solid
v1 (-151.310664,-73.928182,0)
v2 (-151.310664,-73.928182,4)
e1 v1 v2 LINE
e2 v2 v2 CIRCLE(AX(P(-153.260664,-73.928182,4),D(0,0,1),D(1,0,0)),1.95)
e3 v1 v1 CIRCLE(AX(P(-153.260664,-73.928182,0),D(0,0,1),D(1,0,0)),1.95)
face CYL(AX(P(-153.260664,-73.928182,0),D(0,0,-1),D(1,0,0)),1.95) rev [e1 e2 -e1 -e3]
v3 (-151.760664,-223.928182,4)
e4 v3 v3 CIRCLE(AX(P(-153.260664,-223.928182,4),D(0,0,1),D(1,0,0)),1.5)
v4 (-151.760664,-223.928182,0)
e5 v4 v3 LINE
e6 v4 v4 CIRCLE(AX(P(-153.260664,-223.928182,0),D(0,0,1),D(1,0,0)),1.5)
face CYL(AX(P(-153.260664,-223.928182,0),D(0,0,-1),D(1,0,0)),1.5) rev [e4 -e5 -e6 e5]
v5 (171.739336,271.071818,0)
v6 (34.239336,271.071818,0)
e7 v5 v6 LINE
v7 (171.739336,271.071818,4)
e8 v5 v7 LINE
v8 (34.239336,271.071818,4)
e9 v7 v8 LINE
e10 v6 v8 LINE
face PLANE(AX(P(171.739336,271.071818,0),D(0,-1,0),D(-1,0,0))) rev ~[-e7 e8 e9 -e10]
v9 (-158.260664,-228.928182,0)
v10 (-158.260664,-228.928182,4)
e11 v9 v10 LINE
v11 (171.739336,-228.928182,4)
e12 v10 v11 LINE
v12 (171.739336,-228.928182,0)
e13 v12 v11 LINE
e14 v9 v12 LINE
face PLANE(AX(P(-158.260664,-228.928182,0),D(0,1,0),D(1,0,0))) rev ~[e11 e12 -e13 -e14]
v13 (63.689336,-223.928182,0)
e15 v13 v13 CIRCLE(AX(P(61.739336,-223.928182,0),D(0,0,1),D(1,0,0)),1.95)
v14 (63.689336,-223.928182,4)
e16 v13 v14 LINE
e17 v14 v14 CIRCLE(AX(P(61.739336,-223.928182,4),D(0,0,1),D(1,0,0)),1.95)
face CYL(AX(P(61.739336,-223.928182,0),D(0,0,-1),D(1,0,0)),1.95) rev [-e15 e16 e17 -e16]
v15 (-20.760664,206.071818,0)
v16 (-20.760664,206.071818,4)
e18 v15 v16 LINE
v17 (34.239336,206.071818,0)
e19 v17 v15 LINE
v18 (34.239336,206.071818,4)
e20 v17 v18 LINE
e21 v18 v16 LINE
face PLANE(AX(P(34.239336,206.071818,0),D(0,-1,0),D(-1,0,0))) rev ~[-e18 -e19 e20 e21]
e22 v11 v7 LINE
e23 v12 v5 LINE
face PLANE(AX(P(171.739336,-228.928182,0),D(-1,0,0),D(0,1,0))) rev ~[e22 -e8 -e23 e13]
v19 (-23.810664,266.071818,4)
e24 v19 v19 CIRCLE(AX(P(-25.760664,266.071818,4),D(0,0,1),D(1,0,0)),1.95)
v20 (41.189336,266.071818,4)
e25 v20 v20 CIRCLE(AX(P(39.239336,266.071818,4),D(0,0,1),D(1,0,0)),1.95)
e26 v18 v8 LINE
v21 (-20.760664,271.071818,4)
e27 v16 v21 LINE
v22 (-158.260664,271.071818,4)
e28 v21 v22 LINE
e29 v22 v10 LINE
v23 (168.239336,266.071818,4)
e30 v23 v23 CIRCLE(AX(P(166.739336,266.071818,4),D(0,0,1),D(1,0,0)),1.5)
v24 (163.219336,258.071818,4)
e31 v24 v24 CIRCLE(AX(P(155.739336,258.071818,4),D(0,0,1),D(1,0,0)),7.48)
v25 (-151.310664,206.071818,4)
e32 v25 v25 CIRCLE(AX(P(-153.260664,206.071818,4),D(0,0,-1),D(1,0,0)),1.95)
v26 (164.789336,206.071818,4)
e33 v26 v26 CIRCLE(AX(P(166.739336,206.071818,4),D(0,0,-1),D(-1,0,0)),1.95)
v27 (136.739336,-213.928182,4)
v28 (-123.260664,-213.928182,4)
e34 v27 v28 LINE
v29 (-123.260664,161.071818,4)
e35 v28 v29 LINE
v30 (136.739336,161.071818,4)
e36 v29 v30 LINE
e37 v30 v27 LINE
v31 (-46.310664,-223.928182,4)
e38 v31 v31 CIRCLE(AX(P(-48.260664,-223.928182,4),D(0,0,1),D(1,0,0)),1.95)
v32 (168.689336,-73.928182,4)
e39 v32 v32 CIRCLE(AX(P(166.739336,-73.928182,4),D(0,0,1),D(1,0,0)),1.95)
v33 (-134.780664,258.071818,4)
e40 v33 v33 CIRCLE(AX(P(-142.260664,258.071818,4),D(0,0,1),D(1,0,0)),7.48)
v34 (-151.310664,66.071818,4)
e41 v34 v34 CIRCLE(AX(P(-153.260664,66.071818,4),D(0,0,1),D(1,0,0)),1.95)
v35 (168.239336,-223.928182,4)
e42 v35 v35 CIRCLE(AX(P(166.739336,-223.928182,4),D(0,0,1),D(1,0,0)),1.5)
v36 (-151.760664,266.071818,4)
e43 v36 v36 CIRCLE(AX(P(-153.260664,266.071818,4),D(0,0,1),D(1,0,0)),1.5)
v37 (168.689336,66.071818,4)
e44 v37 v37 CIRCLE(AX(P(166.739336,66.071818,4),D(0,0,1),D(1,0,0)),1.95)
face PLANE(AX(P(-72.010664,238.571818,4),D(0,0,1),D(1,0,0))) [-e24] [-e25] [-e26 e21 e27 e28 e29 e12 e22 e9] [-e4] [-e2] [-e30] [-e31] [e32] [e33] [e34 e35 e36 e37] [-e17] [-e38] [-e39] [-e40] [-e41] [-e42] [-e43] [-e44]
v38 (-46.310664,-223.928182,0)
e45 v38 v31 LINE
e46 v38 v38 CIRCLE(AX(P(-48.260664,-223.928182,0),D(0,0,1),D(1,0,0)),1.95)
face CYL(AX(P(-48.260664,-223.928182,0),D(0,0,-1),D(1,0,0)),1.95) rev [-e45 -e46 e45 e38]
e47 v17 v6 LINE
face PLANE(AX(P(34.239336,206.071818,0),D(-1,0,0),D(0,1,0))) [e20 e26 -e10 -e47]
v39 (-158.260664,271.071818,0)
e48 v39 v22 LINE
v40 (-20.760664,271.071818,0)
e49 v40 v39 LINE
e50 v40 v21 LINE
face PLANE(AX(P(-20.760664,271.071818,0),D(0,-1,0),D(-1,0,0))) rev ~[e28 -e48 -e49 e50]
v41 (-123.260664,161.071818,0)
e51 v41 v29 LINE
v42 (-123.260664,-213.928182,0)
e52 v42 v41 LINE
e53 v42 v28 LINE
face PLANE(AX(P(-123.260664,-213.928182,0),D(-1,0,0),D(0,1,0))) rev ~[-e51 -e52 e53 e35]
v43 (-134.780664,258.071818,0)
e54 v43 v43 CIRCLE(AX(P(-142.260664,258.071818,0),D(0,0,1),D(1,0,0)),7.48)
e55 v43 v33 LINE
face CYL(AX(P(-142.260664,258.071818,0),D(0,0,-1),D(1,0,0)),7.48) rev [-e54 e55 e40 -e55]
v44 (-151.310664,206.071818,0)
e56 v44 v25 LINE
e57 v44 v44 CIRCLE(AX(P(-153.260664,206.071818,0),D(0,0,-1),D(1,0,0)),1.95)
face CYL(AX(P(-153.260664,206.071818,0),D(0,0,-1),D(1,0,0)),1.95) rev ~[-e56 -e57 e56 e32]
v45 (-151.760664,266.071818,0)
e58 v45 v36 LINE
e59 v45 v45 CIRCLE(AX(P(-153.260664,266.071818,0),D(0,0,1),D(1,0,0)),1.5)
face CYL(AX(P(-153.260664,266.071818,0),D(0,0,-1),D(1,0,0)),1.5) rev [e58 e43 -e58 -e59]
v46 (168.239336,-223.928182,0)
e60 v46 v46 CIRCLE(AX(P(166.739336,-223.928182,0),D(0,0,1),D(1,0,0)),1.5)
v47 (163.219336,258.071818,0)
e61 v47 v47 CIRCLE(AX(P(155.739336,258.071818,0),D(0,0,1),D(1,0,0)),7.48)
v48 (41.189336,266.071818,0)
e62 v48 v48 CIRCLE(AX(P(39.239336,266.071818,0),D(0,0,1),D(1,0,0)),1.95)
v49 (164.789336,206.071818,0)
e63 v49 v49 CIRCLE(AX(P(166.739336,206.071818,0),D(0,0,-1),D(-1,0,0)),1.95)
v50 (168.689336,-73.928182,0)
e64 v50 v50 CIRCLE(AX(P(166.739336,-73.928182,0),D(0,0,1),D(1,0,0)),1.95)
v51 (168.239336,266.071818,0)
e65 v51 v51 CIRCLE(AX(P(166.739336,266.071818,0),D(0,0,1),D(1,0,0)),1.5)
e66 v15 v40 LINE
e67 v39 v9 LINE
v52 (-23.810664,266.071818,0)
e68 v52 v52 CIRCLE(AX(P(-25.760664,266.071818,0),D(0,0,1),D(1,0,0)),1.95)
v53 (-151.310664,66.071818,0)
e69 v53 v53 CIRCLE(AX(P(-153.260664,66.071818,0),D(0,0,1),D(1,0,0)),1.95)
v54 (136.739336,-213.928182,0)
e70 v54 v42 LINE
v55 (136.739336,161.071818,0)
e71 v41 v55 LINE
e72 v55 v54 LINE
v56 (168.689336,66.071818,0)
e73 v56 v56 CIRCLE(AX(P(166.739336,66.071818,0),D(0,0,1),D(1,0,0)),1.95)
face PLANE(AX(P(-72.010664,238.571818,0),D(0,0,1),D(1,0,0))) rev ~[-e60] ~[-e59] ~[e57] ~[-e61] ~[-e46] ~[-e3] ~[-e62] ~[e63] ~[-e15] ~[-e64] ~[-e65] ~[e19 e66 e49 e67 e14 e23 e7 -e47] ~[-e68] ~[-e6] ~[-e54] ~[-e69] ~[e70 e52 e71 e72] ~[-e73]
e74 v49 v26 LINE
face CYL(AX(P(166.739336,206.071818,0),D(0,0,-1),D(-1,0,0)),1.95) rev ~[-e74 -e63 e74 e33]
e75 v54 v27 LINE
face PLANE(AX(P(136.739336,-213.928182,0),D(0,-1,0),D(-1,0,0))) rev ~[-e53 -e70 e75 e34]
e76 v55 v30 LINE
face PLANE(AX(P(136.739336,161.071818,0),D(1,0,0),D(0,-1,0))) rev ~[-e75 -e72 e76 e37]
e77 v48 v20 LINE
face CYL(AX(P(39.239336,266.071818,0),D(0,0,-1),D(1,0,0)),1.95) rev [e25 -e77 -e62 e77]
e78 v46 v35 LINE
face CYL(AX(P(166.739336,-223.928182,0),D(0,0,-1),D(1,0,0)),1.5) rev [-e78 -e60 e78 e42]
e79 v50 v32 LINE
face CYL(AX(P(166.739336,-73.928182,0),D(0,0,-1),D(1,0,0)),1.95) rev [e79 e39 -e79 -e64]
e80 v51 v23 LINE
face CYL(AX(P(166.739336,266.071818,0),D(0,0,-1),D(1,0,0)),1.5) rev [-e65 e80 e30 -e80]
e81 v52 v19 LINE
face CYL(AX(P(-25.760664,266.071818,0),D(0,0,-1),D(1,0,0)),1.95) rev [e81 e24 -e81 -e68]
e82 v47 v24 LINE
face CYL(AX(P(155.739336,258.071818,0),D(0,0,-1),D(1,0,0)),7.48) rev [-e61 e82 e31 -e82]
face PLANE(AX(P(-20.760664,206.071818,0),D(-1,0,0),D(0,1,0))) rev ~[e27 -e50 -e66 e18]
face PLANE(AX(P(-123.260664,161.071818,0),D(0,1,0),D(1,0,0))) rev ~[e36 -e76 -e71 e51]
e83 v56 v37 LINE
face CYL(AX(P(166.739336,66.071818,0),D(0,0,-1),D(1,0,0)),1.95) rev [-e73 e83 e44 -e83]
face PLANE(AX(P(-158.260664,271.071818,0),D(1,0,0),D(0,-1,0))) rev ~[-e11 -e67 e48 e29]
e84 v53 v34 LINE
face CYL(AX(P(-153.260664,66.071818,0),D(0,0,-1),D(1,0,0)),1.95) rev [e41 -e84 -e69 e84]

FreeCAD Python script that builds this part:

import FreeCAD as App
import Part
import Sketcher

V = App.Vector
Q = App.Units.Quantity


def add_polygon(sketch, points):
    """Adds a closed chain of lines whose ends are joined by coincident constraints."""
    first, n = sketch.GeometryCount, len(points)
    for a, b in zip(points, points[1:] + points[:1]):
        sketch.addGeometry(Part.LineSegment(App.Vector(*a, 0), App.Vector(*b, 0)), False)
    for i in range(n):
        sketch.addConstraint(Sketcher.Constraint("Coincident", first + i, 2, first + (i + 1) % n, 1))

doc = App.newDocument("Part")
params = doc.addObject("Spreadsheet::Sheet", "Params")
for row, (alias, value) in enumerate([
    ("sketch1_diameter", "3 mm"),
    ("sketch1_diameter2", "3.9 mm"),
    ("sketch1_diameter3", "14.96 mm"),
    ("sketch1_width", "330 mm"),
    ("sketch1_width2", "55 mm"),
    ("pad1_length", "4 mm"),
], start=1):
    params.set(f"A{row}", alias)
    params.set(f"B{row}", "=" + value)
    params.setAlias(f"B{row}", alias)

body = doc.addObject("PartDesign::Body", "Body")

# Sketch on XY plane
sketch1 = body.newObject("Sketcher::SketchObject", "Sketch")
sketch1.AttachmentSupport = (doc.getObject("XY_Plane"), [""])
sketch1.MapMode = "FlatFace"
add_polygon(sketch1, [(-20.8, 206.1), (-20.8, 271.1), (-158.3, 271.1), (-158.3, -228.9), (171.7, -228.9), (171.7, 271.1), (34.2, 271.1), (34.2, 206.1)])  # lines 0-7
add_polygon(sketch1, [(-123.3, -213.9), (-123.3, 161.1), (136.7, 161.1), (136.7, -213.9)])  # lines 8-11
sketch1.addGeometry(Part.Circle(V(-153.3, -223.9, 0), V(0, 0, 1), 1.5), False)  # 12
sketch1.addGeometry(Part.Circle(V(-48.3, -223.9, 0), V(0, 0, 1), 1.9), False)  # 13
sketch1.addGeometry(Part.Circle(V(-153.3, -73.9, 0), V(0, 0, 1), 1.9), False)  # 14
sketch1.addGeometry(Part.Circle(V(61.7, -223.9, 0), V(0, 0, 1), 1.9), False)  # 15
sketch1.addGeometry(Part.Circle(V(166.7, -223.9, 0), V(0, 0, 1), 1.5), False)  # 16
sketch1.addGeometry(Part.Circle(V(166.7, -73.9, 0), V(0, 0, 1), 1.9), False)  # 17
sketch1.addGeometry(Part.Circle(V(-153.3, 66.1, 0), V(0, 0, 1), 1.9), False)  # 18
sketch1.addGeometry(Part.Circle(V(-153.3, 206.1, 0), V(0, 0, 1), 1.9), False)  # 19
sketch1.addGeometry(Part.Circle(V(-153.3, 266.1, 0), V(0, 0, 1), 1.5), False)  # 20
sketch1.addGeometry(Part.Circle(V(-142.3, 258.1, 0), V(0, 0, 1), 7.5), False)  # 21
sketch1.addGeometry(Part.Circle(V(-25.8, 266.1, 0), V(0, 0, 1), 1.9), False)  # 22
sketch1.addGeometry(Part.Circle(V(166.7, 66.1, 0), V(0, 0, 1), 1.9), False)  # 23
sketch1.addGeometry(Part.Circle(V(39.2, 266.1, 0), V(0, 0, 1), 1.9), False)  # 24
sketch1.addGeometry(Part.Circle(V(166.7, 206.1, 0), V(0, 0, 1), 1.9), False)  # 25
sketch1.addGeometry(Part.Circle(V(155.7, 258.1, 0), V(0, 0, 1), 7.5), False)  # 26
sketch1.addGeometry(Part.Circle(V(166.7, 266.1, 0), V(0, 0, 1), 1.5), False)  # 27
sketch1.addConstraint([
    Sketcher.Constraint("Vertical", 0),
    Sketcher.Constraint("Horizontal", 1),
    Sketcher.Constraint("Vertical", 2),
    Sketcher.Constraint("Horizontal", 3),
    Sketcher.Constraint("Vertical", 4),
    Sketcher.Constraint("Horizontal", 5),
    Sketcher.Constraint("Vertical", 6),
    Sketcher.Constraint("Horizontal", 7),
    Sketcher.Constraint("Vertical", 8),
    Sketcher.Constraint("Horizontal", 9),
    Sketcher.Constraint("Vertical", 10),
    Sketcher.Constraint("Horizontal", 11),
    Sketcher.Constraint("Equal", 13, 14),
    Sketcher.Constraint("Equal", 14, 15),
    Sketcher.Constraint("Equal", 12, 16),
    Sketcher.Constraint("Equal", 15, 17),
    Sketcher.Constraint("Equal", 17, 18),
    Sketcher.Constraint("Equal", 18, 19),
    Sketcher.Constraint("Equal", 16, 20),
    Sketcher.Constraint("Equal", 19, 22),
    Sketcher.Constraint("Equal", 22, 23),
    Sketcher.Constraint("Equal", 23, 24),
    Sketcher.Constraint("Equal", 24, 25),
    Sketcher.Constraint("Equal", 21, 26),
    Sketcher.Constraint("Equal", 20, 27),
    Sketcher.Constraint("Horizontal", 12, 3, 13, 3),
    Sketcher.Constraint("Horizontal", 13, 3, 15, 3),
    Sketcher.Constraint("Horizontal", 15, 3, 16, 3),
    Sketcher.Constraint("Horizontal", 14, 3, 17, 3),
    Sketcher.Constraint("Horizontal", 20, 3, 22, 3),
    Sketcher.Constraint("Horizontal", 18, 3, 23, 3),
    Sketcher.Constraint("Horizontal", 22, 3, 24, 3),
    Sketcher.Constraint("Horizontal", 19, 3, 25, 3),
    Sketcher.Constraint("Horizontal", 21, 3, 26, 3),
    Sketcher.Constraint("Horizontal", 24, 3, 27, 3),
    Sketcher.Constraint("Horizontal", 1, 2, 4, 2),
    Sketcher.Constraint("Horizontal", 25, 3, 6, 2),
    Sketcher.Constraint("Vertical", 12, 3, 14, 3),
    Sketcher.Constraint("Vertical", 16, 3, 17, 3),
    Sketcher.Constraint("Vertical", 14, 3, 18, 3),
    Sketcher.Constraint("Vertical", 18, 3, 19, 3),
    Sketcher.Constraint("Vertical", 19, 3, 20, 3),
    Sketcher.Constraint("Vertical", 17, 3, 23, 3),
    Sketcher.Constraint("Vertical", 23, 3, 25, 3),
    Sketcher.Constraint("Vertical", 25, 3, 27, 3),
    Sketcher.Constraint("Equal", 1, 5),
    Sketcher.Constraint("Diameter", 12, Q("3 mm")),
    Sketcher.Constraint("Diameter", 13, Q("3.9 mm")),
    Sketcher.Constraint("Diameter", 21, Q("14.96 mm")),
    Sketcher.Constraint("DistanceX", 3, 1, 3, 2, Q("330 mm")),
    Sketcher.Constraint("DistanceX", 7, 2, 7, 1, Q("55 mm")),
    Sketcher.Constraint("DistanceX", 9, 1, 9, 2, Q("260 mm")),
    Sketcher.Constraint("DistanceY", 0, 1, 0, 2, Q("65 mm")),
    Sketcher.Constraint("DistanceY", 2, 2, 2, 1, Q("500 mm")),
    Sketcher.Constraint("DistanceY", 8, 1, 8, 2, Q("375 mm")),
    Sketcher.Constraint("DistanceX", 12, 3, 13, 3, Q("105 mm")),
    Sketcher.Constraint("DistanceY", 12, 3, 14, 3, Q("150 mm")),
    Sketcher.Constraint("DistanceX", 13, 3, 15, 3, Q("110 mm")),
    Sketcher.Constraint("DistanceX", 15, 3, 16, 3, Q("105 mm")),
    Sketcher.Constraint("DistanceY", 14, 3, 18, 3, Q("140 mm")),
    Sketcher.Constraint("DistanceY", 18, 3, 19, 3, Q("140 mm")),
    Sketcher.Constraint("DistanceY", 19, 3, 20, 3, Q("60 mm")),
    Sketcher.Constraint("DistanceX", 20, 3, 21, 3, Q("11 mm")),
    Sketcher.Constraint("DistanceY", 21, 3, 20, 3, Q("8 mm")),
    Sketcher.Constraint("DistanceX", 22, 3, 24, 3, Q("65 mm")),
    Sketcher.Constraint("DistanceX", 26, 3, 25, 3, Q("11 mm")),
    Sketcher.Constraint("DistanceX", 22, 3, 0, 2, Q("5 mm")),
    Sketcher.Constraint("DistanceX", 1, 2, 20, 3, Q("5 mm")),
    Sketcher.Constraint("DistanceX", 19, 3, 8, 2, Q("30 mm")),
    Sketcher.Constraint("DistanceY", 8, 2, 19, 3, Q("45 mm")),
    Sketcher.Constraint("DistanceY", 12, 3, -1, 1, Q("223.928182 mm")),
    Sketcher.Constraint("DistanceX", 12, 3, -1, 1, Q("153.260664 mm")),
])
sketch1.setExpression("Constraints[58]", "Params.sketch1_diameter")
sketch1.setExpression("Constraints[59]", "Params.sketch1_diameter2")
sketch1.setExpression("Constraints[60]", "Params.sketch1_diameter3")
sketch1.setExpression("Constraints[61]", "Params.sketch1_width")
sketch1.setExpression("Constraints[62]", "Params.sketch1_width2")
pad1 = body.newObject("PartDesign::Pad", "Pad")
pad1.Profile = sketch1
pad1.setExpression("Length", "Params.pad1_length")

doc.recompute()
